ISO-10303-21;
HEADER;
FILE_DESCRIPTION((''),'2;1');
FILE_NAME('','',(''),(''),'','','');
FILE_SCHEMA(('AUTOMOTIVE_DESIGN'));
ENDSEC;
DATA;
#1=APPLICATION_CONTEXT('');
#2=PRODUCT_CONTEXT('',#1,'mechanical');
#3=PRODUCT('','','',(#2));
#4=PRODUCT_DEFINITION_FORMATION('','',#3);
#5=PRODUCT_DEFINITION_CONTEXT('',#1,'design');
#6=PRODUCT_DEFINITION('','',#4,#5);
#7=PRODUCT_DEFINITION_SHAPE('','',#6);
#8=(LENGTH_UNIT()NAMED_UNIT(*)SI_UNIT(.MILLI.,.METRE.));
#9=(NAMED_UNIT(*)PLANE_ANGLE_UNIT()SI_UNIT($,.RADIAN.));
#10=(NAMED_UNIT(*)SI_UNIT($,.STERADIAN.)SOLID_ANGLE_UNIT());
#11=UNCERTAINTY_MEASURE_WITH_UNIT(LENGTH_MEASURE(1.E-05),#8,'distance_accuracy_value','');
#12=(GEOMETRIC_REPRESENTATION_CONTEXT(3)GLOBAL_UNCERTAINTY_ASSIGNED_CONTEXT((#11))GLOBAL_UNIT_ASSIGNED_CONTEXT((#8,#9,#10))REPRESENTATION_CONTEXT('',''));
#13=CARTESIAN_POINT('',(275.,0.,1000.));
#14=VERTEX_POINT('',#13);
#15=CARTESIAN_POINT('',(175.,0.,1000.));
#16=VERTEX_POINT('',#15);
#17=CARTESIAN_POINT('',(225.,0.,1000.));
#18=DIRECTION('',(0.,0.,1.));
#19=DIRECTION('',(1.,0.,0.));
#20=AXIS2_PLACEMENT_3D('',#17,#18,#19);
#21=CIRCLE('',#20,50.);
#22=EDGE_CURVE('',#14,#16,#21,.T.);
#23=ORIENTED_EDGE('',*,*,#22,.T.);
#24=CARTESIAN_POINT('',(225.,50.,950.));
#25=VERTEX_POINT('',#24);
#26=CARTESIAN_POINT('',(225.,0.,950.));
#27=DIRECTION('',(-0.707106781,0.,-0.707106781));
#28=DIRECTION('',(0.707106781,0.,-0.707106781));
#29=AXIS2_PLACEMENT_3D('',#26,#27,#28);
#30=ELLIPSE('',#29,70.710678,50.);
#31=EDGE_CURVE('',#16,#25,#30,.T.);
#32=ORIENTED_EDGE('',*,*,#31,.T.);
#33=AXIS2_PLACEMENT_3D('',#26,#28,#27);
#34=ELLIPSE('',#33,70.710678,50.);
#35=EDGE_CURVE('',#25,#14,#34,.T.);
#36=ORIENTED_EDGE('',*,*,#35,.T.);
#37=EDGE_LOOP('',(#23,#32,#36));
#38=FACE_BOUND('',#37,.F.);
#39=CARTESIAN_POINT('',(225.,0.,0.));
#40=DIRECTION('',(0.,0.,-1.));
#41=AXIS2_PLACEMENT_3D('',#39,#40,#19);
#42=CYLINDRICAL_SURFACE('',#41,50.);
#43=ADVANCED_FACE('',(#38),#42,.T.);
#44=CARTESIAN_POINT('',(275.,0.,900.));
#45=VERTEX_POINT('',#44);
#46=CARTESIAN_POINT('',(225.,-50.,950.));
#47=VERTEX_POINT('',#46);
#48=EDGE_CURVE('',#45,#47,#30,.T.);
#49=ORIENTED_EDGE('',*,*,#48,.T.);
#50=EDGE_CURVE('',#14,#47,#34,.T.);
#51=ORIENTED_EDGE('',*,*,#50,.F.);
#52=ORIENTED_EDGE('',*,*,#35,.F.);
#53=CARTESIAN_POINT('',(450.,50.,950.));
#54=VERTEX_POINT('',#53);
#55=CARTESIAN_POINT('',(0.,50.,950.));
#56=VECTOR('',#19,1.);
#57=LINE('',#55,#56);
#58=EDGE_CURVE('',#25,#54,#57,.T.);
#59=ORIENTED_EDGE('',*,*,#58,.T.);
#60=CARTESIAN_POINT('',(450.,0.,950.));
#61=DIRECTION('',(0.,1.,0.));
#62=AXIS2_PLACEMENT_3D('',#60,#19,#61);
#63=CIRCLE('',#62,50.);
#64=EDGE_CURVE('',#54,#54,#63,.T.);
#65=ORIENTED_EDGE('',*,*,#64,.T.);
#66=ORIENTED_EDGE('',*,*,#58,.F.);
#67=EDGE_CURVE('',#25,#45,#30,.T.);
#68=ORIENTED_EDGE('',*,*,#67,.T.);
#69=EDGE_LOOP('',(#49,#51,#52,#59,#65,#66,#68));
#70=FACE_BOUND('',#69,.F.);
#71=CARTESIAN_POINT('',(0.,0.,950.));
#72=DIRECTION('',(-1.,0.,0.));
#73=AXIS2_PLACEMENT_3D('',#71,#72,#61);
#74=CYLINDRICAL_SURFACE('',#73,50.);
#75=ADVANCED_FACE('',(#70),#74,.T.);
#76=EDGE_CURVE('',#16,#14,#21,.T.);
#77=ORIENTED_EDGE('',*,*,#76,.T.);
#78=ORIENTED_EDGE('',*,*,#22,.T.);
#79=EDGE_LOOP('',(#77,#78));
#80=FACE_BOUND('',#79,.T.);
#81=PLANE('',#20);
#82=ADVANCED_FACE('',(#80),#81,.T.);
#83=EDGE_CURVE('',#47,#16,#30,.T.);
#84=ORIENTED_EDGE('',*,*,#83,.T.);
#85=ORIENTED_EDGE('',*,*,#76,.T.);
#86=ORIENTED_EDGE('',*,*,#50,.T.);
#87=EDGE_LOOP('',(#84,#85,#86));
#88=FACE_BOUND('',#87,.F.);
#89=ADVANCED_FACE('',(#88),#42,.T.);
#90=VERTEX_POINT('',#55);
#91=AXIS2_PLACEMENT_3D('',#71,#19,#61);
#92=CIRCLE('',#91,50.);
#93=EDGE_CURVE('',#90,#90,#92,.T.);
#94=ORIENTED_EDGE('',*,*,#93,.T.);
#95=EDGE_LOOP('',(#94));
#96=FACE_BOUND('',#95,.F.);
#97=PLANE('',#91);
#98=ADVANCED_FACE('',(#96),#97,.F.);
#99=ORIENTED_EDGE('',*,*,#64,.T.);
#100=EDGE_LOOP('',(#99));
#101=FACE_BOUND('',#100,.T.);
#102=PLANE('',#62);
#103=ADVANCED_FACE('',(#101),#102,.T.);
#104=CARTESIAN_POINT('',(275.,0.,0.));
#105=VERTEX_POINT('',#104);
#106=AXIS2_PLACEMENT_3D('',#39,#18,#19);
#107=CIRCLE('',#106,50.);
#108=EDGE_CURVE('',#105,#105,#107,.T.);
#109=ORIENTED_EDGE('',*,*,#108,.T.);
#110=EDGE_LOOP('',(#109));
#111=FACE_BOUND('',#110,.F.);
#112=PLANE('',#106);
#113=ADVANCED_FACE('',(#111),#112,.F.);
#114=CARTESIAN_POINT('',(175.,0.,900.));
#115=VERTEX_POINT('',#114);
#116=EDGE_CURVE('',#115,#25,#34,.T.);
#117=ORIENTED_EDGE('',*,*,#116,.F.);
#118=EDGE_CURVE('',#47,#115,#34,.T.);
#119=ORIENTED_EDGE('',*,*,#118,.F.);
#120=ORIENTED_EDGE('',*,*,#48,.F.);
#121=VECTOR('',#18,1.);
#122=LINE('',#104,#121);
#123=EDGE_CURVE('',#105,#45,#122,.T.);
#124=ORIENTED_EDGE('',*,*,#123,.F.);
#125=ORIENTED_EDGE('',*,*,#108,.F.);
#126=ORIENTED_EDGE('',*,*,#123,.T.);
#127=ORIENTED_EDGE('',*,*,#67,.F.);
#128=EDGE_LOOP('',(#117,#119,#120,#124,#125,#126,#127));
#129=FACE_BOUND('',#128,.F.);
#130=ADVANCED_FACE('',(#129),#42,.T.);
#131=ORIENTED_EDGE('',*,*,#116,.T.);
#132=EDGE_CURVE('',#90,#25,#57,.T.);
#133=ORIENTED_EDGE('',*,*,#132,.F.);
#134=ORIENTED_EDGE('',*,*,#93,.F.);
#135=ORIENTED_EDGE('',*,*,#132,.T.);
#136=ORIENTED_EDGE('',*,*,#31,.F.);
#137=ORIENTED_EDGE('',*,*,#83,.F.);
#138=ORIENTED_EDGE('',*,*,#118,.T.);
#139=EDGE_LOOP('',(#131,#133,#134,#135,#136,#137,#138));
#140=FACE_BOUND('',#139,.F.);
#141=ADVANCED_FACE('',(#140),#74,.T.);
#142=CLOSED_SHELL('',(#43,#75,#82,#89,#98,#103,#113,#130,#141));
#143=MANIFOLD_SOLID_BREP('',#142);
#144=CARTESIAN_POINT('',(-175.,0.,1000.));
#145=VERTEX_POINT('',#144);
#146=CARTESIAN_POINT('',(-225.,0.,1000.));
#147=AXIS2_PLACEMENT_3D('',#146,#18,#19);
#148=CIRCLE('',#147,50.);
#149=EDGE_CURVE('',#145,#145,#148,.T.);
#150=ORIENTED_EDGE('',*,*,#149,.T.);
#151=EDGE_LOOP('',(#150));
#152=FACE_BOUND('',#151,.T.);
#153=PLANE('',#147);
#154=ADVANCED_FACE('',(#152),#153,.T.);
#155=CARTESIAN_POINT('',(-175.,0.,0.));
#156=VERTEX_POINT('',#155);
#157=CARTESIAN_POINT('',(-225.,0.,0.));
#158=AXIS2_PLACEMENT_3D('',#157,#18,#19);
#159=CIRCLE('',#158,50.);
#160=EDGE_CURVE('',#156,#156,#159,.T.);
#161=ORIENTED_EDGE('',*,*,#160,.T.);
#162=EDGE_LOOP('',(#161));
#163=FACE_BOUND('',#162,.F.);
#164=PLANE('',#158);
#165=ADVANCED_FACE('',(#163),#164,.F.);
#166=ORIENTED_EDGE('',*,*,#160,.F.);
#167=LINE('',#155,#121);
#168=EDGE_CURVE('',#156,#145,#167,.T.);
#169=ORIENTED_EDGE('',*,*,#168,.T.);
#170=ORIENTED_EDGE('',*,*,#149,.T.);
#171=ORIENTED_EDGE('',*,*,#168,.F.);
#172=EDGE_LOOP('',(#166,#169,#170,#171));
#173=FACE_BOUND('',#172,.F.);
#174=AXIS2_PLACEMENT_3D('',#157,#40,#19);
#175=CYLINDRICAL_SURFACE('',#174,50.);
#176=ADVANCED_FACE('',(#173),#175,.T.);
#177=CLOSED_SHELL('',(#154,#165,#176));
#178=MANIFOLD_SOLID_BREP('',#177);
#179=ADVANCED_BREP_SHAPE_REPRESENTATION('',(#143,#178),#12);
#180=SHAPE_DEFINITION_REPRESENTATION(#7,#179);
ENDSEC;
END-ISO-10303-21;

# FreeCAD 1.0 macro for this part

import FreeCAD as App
import Part
import Sketcher
Q = App.Units.Quantity

doc = App.newDocument("Part")
body = doc.addObject("PartDesign::Body", "Body")
body.AllowCompound = True

# Sketch on XY plane
sketch1 = body.newObject("Sketcher::SketchObject", "Sketch")
sketch1.AttachmentSupport = (doc.getObject("XY_Plane"), [""])
sketch1.MapMode = "FlatFace"
sketch1.addGeometry([
    Part.Circle(App.Vector(225, 0, 0), App.Vector(0, 0, 1), 50),
    Part.Circle(App.Vector(-225, 0, 0), App.Vector(0, 0, 1), 50),
], False)
sketch1.addConstraint([
    Sketcher.Constraint("Equal", 0, 1),
    Sketcher.Constraint("Symmetric", 0, 3, 1, 3, -1, 1),
    Sketcher.Constraint("PointOnObject", 0, 3, -1),
    Sketcher.Constraint("Diameter", 0, Q("100 mm")),
    Sketcher.Constraint("DistanceX", -1, 1, 0, 3, Q("225 mm")),
])
pad1 = body.newObject("PartDesign::Pad", "Pad")
pad1.Profile = sketch1
pad1.Length = 1000

# Sketch on YZ plane
sketch2 = body.newObject("Sketcher::SketchObject", "Sketch001")
sketch2.AttachmentSupport = (doc.getObject("YZ_Plane"), [""])
sketch2.MapMode = "FlatFace"
sketch2.addGeometry(Part.Circle(App.Vector(0, 950, 0), App.Vector(0, 0, 1), 50), False)
sketch2.addConstraint([
    Sketcher.Constraint("PointOnObject", 0, 3, -2),
    Sketcher.Constraint("Diameter", 0, Q("100 mm")),
    Sketcher.Constraint("DistanceY", -1, 1, 0, 3, Q("950 mm")),
])
pad2 = body.newObject("PartDesign::Pad", "Pad001")
pad2.Profile = sketch2
pad2.Length = 450

doc.recompute()
